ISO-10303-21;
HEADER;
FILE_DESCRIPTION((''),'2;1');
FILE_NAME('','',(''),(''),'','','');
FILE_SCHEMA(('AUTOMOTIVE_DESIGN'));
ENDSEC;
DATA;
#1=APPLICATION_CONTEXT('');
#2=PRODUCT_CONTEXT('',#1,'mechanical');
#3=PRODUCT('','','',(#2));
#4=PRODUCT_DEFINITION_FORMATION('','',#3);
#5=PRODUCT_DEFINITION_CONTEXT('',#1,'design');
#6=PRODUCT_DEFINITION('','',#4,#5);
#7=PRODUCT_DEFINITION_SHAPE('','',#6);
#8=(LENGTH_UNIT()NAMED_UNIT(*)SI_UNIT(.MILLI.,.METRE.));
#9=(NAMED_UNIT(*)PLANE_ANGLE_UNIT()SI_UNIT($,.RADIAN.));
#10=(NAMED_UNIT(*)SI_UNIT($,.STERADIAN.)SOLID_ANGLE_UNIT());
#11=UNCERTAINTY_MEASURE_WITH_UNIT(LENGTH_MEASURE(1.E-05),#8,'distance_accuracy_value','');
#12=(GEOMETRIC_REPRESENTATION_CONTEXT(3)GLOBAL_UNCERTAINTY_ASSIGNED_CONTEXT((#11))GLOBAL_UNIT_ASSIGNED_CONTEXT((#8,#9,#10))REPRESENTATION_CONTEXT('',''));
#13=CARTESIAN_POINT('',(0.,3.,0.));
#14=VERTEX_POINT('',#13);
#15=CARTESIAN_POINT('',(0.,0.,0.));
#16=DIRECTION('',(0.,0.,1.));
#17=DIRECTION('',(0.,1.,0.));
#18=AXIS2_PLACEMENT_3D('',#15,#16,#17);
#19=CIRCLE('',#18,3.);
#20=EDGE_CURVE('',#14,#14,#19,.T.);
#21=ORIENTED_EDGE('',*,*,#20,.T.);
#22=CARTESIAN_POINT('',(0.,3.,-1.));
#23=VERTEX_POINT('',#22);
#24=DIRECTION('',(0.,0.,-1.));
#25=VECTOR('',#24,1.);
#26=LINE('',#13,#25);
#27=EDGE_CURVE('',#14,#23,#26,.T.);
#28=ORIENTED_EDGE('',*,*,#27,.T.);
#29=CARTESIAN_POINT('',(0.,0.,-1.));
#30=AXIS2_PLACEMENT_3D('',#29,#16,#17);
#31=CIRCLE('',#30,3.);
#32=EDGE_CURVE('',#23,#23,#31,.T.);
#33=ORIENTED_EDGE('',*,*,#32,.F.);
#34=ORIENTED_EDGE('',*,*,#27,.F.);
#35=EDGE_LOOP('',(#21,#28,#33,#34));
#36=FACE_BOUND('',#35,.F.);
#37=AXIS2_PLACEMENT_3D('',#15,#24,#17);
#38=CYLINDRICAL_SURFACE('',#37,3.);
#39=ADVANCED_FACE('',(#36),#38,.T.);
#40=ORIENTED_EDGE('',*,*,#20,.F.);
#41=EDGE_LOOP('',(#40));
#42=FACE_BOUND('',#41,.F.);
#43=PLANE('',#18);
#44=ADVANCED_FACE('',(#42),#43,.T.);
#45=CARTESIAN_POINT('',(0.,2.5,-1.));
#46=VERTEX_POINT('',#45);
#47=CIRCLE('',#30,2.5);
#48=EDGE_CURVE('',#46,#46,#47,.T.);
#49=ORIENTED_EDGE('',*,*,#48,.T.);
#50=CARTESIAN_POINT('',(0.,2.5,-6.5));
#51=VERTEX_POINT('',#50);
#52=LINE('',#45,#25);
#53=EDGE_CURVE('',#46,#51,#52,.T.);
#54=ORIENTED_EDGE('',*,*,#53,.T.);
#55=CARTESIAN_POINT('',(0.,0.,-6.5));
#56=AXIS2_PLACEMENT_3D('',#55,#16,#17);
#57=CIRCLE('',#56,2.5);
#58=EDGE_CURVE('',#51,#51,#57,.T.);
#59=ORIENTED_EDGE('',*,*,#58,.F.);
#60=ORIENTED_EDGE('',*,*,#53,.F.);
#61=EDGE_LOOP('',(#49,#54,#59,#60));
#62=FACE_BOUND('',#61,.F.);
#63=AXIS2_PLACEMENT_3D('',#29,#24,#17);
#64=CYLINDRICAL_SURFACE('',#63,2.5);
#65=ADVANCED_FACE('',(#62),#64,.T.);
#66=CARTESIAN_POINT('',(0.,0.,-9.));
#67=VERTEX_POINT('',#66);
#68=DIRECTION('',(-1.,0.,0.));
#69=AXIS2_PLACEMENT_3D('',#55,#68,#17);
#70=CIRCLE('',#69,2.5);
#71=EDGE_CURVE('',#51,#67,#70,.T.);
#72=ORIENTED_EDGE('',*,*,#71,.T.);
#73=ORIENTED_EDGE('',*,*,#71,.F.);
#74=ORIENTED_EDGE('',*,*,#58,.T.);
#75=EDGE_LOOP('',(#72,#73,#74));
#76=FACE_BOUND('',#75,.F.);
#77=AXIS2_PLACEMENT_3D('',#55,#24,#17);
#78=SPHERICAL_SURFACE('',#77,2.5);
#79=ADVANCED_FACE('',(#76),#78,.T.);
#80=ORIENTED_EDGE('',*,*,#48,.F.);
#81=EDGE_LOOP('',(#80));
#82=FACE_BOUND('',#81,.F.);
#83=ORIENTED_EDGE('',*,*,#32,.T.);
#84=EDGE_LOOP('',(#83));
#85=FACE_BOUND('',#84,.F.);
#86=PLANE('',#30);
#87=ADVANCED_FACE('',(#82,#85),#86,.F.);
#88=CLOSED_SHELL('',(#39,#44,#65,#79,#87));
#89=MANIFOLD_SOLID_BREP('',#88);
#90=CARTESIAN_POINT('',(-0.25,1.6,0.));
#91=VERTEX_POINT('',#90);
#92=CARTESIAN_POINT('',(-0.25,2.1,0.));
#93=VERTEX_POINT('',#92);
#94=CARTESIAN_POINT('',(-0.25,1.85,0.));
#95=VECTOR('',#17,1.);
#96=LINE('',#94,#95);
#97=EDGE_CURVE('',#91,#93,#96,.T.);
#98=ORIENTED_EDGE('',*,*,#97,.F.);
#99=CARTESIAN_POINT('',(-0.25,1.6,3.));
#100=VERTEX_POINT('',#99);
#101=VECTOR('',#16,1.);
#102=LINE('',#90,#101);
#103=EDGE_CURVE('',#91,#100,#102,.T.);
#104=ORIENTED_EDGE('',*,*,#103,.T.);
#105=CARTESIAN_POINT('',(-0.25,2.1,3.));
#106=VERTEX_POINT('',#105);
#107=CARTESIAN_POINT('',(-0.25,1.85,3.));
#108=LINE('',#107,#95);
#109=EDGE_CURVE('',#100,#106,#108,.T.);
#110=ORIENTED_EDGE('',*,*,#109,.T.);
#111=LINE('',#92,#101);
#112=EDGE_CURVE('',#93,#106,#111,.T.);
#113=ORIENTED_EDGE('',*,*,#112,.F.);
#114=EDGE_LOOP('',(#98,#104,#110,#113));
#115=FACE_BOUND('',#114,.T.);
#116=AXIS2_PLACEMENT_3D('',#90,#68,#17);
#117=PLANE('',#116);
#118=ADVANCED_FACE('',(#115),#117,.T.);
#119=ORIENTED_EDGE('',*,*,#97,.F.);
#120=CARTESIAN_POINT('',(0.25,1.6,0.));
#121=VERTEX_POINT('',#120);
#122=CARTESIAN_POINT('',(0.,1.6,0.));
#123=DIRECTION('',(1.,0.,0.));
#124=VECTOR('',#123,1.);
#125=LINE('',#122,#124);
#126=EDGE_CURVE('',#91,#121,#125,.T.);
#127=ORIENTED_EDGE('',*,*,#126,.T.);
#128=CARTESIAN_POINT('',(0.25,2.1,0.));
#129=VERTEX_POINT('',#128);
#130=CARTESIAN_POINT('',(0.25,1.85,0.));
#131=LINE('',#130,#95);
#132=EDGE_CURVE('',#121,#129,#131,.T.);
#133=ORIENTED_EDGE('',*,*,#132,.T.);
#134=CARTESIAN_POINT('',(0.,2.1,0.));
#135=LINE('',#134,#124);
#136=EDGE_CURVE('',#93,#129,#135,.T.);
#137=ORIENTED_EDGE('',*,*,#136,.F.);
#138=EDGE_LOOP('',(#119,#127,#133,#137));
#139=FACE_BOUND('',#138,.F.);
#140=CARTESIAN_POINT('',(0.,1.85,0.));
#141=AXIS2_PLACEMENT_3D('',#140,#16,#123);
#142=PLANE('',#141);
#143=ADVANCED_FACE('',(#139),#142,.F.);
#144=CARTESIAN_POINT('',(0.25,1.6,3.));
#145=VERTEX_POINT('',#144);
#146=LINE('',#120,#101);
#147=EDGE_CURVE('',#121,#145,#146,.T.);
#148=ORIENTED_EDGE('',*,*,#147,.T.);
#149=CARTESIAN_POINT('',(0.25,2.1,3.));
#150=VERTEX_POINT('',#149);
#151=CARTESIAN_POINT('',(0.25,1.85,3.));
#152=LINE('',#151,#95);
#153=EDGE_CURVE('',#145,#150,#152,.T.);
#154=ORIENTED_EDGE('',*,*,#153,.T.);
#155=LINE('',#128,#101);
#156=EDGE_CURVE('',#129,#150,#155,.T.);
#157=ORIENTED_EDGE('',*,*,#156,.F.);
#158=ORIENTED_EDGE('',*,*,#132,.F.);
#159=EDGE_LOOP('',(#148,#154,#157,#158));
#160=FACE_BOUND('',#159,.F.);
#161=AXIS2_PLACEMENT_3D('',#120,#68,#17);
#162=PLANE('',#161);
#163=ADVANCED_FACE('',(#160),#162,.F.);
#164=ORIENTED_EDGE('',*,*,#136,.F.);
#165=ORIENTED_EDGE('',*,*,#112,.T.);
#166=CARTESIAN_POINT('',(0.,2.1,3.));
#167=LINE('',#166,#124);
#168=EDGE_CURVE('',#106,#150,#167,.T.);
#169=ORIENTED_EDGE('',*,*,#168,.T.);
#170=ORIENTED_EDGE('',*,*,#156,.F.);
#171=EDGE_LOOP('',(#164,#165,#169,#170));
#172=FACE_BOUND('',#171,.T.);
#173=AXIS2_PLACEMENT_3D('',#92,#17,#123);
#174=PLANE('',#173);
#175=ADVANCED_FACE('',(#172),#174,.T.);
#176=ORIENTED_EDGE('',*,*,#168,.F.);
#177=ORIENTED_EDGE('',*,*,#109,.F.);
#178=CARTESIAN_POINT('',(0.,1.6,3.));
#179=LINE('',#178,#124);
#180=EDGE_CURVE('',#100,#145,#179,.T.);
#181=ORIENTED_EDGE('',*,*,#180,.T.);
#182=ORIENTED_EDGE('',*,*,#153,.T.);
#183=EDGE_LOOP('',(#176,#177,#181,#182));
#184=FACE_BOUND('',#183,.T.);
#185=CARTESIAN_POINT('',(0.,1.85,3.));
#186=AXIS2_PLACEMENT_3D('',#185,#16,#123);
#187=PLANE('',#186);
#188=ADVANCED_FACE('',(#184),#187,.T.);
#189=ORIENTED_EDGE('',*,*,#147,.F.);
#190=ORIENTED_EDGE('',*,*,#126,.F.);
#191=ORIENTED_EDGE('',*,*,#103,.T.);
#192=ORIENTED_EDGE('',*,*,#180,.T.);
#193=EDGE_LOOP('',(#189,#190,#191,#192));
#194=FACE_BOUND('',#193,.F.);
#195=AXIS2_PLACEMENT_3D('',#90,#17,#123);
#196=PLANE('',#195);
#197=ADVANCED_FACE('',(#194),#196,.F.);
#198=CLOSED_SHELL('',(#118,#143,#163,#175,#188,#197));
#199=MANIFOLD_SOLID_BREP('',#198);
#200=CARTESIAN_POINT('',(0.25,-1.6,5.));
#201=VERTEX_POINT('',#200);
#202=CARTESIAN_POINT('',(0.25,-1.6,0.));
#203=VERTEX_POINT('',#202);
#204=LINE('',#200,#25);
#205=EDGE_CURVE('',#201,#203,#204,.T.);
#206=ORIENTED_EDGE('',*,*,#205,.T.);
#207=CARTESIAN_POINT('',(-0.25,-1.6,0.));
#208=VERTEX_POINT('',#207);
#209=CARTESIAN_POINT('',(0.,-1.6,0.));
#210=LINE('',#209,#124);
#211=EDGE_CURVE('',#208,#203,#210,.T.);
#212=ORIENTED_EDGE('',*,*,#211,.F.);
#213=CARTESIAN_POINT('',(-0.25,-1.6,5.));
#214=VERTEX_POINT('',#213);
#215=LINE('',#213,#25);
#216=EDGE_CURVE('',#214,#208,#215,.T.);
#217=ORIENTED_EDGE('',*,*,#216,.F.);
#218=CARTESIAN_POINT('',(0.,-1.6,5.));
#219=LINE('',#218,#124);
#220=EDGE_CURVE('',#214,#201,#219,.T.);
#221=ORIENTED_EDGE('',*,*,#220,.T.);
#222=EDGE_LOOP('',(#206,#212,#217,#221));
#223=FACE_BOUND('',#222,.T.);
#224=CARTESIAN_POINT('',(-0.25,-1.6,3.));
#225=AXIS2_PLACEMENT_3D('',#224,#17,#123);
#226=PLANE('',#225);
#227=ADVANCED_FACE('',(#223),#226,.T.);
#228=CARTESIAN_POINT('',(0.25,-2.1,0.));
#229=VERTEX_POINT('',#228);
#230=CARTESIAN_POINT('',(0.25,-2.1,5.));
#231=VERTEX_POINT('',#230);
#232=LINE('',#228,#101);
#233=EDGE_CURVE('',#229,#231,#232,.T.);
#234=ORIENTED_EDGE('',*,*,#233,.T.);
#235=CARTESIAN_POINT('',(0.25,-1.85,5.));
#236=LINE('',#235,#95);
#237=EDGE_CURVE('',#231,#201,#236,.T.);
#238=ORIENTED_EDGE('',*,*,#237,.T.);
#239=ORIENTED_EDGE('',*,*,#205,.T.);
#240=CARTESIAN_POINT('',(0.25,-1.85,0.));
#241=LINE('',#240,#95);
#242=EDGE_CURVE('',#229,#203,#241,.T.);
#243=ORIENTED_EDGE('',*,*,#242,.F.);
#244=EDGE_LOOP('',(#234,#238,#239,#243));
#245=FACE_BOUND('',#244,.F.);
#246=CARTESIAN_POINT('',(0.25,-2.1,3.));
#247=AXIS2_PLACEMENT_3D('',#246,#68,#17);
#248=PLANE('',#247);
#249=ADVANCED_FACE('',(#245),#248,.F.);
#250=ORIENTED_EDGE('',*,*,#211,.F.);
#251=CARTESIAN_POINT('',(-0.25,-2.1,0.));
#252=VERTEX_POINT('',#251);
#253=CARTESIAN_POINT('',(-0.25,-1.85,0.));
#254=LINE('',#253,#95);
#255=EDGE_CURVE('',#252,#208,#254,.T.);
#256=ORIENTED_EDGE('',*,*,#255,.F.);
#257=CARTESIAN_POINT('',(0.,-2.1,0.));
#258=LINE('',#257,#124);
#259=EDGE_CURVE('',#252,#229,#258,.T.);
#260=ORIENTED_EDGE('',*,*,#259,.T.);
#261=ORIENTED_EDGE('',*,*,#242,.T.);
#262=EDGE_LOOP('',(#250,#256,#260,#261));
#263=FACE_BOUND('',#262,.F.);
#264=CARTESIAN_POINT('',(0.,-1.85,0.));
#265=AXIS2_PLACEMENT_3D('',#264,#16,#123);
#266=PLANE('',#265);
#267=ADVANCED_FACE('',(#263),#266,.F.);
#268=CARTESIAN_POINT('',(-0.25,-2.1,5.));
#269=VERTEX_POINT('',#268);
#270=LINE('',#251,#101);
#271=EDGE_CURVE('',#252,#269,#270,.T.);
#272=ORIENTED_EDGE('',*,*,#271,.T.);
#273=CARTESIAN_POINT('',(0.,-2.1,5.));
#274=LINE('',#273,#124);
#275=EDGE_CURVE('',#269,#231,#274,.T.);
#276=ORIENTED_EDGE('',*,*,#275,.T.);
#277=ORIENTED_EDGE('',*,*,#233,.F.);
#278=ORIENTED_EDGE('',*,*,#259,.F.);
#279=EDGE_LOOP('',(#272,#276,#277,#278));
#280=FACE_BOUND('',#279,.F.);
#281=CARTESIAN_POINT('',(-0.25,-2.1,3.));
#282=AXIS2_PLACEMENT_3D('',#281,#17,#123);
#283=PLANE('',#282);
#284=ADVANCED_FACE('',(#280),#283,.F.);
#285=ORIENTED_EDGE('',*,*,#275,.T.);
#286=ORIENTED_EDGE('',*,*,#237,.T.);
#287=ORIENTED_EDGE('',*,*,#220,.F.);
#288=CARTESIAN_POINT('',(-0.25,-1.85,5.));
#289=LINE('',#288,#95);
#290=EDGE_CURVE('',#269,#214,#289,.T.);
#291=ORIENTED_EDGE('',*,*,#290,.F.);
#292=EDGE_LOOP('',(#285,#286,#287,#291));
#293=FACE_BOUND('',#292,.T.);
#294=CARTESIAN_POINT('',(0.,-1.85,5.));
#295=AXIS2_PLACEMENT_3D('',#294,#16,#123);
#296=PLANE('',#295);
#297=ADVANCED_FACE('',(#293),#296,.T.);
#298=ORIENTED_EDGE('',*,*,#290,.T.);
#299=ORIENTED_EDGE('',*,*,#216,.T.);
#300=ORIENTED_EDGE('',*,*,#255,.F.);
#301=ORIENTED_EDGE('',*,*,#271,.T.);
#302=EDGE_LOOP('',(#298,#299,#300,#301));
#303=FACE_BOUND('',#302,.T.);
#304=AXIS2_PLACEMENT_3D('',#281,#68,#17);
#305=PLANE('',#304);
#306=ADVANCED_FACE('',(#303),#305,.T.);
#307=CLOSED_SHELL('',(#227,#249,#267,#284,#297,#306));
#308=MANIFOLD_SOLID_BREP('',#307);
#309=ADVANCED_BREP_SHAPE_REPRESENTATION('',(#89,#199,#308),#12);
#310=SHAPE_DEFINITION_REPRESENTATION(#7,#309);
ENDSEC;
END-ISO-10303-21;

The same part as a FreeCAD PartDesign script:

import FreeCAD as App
import Part
import Sketcher
from FreeCAD import Vector
Q = App.Units.Quantity


def edges_at(feature, points):
    """Names of the edges that pass closest to the given points."""
    edges = feature.Shape.Edges
    near = lambda p: min(range(len(edges)), key=lambda i: edges[i].distToShape(Part.Vertex(*p))[0])
    return sorted({f"Edge{near(p) + 1}" for p in points})

doc = App.newDocument("Part")
params = doc.addObject("Spreadsheet::Sheet", "Params")
for row, (alias, value) in enumerate([
    ("sketch1_width", "3 mm"),
    ("sketch1_height", "9 mm"),
    ("sketch1_height2", "8 mm"),
    ("sketch1_width2", "2.5 mm"),
    ("revolution_angle", "360 deg"),
    ("fillet_radius", "2.5 mm"),
    ("sketch2_width", "0.5 mm"),
    ("pad1_length", "3 mm"),
    ("sketch3_width", "0.5 mm"),
    ("pad2_length", "3 mm"),
    ("sketch4_width", "0.5 mm"),
    ("pad3_length", "2 mm"),
], start=1):
    params.set(f"A{row}", alias)
    params.set(f"B{row}", "=" + value)
    params.setAlias(f"B{row}", alias)

body = doc.addObject("PartDesign::Body", "Body")

# Sketch on YZ plane
sketch1 = body.newObject("Sketcher::SketchObject", "Sketch")
sketch1.AttachmentSupport = (doc.getObject("YZ_Plane"), [""])
sketch1.MapMode = "FlatFace"
sketch1.addGeometry([
    Part.LineSegment(Vector(3, 0, 0), Vector(0, 0, 0)),  # 0
    Part.LineSegment(Vector(0, 0, 0), Vector(0, -9, 0)),  # 1
    Part.LineSegment(Vector(0, -9, 0), Vector(2.5, -9, 0)),  # 2
    Part.LineSegment(Vector(2.5, -9, 0), Vector(2.5, -1, 0)),  # 3
    Part.LineSegment(Vector(2.5, -1, 0), Vector(3, -1, 0)),  # 4
    Part.LineSegment(Vector(3, -1, 0), Vector(3, 0, 0)),  # 5
], False)
sketch1.addConstraint([
    Sketcher.Constraint("Coincident", 0, 2, 1, 1),
    Sketcher.Constraint("Coincident", 1, 2, 2, 1),
    Sketcher.Constraint("Coincident", 2, 2, 3, 1),
    Sketcher.Constraint("Coincident", 3, 2, 4, 1),
    Sketcher.Constraint("Coincident", 4, 2, 5, 1),
    Sketcher.Constraint("Coincident", 5, 2, 0, 1),
    Sketcher.Constraint("Horizontal", 0),
    Sketcher.Constraint("Vertical", 1),
    Sketcher.Constraint("Horizontal", 2),
    Sketcher.Constraint("Vertical", 3),
    Sketcher.Constraint("Horizontal", 4),
    Sketcher.Constraint("Vertical", 5),
    Sketcher.Constraint("Coincident", 0, 2, -1, 1),
    Sketcher.Constraint("DistanceX", 0, 2, 0, 1, Q("3 mm")),
    Sketcher.Constraint("DistanceY", 1, 2, 1, 1, Q("9 mm")),
    Sketcher.Constraint("DistanceY", 3, 1, 3, 2, Q("8 mm")),
    Sketcher.Constraint("DistanceX", 2, 1, 2, 2, Q("2.5 mm")),
])
sketch1.setExpression("Constraints[13]", "Params.sketch1_width")
sketch1.setExpression("Constraints[14]", "Params.sketch1_height")
sketch1.setExpression("Constraints[15]", "Params.sketch1_height2")
sketch1.setExpression("Constraints[16]", "Params.sketch1_width2")
revolution = body.newObject("PartDesign::Revolution", "Revolution")
revolution.Profile = sketch1
revolution.ReferenceAxis = (sketch1, ["V_Axis"])
revolution.setExpression("Angle", "Params.revolution_angle")
doc.recompute()

fillet = body.newObject("PartDesign::Fillet", "Fillet")
fillet.Base = (revolution, edges_at(revolution, [(0, -2.5, -9)]))
fillet.setExpression("Radius", "Params.fillet_radius")
body2 = doc.addObject("PartDesign::Body", "Body001")

# Sketch on XY plane
sketch2 = body2.newObject("Sketcher::SketchObject", "Sketch001")
sketch2.AttachmentSupport = (doc.getObject("XY_Plane001"), [""])
sketch2.MapMode = "FlatFace"
sketch2.addGeometry([
    Part.LineSegment(Vector(-0.2, -1.6, 0), Vector(-0.2, -2.1, 0)),
    Part.LineSegment(Vector(-0.2, -2.1, 0), Vector(0.2, -2.1, 0)),
    Part.LineSegment(Vector(0.2, -2.1, 0), Vector(0.2, -1.6, 0)),
    Part.LineSegment(Vector(0.2, -1.6, 0), Vector(-0.2, -1.6, 0)),
], False)
sketch2.addConstraint([
    Sketcher.Constraint("Coincident", 0, 2, 1, 1),
    Sketcher.Constraint("Coincident", 1, 2, 2, 1),
    Sketcher.Constraint("Coincident", 2, 2, 3, 1),
    Sketcher.Constraint("Coincident", 3, 2, 0, 1),
    Sketcher.Constraint("Vertical", 0),
    Sketcher.Constraint("Horizontal", 1),
    Sketcher.Constraint("Vertical", 2),
    Sketcher.Constraint("Horizontal", 3),
    Sketcher.Constraint("Equal", 3, 0),
    Sketcher.Constraint("DistanceX", 1, 1, 1, 2, Q("0.5 mm")),
    Sketcher.Constraint("DistanceY", 0, 2, -1, 1, Q("2.1 mm")),
    Sketcher.Constraint("DistanceX", 0, 2, -1, 1, Q("0.25 mm")),
])
sketch2.setExpression("Constraints[9]", "Params.sketch2_width")
pad1 = body2.newObject("PartDesign::Pad", "Pad")
pad1.Profile = sketch2
pad1.setExpression("Length", "Params.pad1_length")
body3 = doc.addObject("PartDesign::Body", "Body002")

# Sketch on XY plane
sketch3 = body3.newObject("Sketcher::SketchObject", "Sketch002")
sketch3.AttachmentSupport = (doc.getObject("XY_Plane002"), [""])
sketch3.MapMode = "FlatFace"
sketch3.addGeometry([
    Part.LineSegment(Vector(-0.2, 2.1, 0), Vector(-0.2, 1.6, 0)),
    Part.LineSegment(Vector(-0.2, 1.6, 0), Vector(0.2, 1.6, 0)),
    Part.LineSegment(Vector(0.2, 1.6, 0), Vector(0.2, 2.1, 0)),
    Part.LineSegment(Vector(0.2, 2.1, 0), Vector(-0.2, 2.1, 0)),
], False)
sketch3.addConstraint([
    Sketcher.Constraint("Coincident", 0, 2, 1, 1),
    Sketcher.Constraint("Coincident", 1, 2, 2, 1),
    Sketcher.Constraint("Coincident", 2, 2, 3, 1),
    Sketcher.Constraint("Coincident", 3, 2, 0, 1),
    Sketcher.Constraint("Vertical", 0),
    Sketcher.Constraint("Horizontal", 1),
    Sketcher.Constraint("Vertical", 2),
    Sketcher.Constraint("Horizontal", 3),
    Sketcher.Constraint("Equal", 3, 0),
    Sketcher.Constraint("DistanceX", 1, 1, 1, 2, Q("0.5 mm")),
    Sketcher.Constraint("DistanceY", -1, 1, 0, 2, Q("1.6 mm")),
    Sketcher.Constraint("DistanceX", 0, 2, -1, 1, Q("0.25 mm")),
])
sketch3.setExpression("Constraints[9]", "Params.sketch3_width")
pad2 = body3.newObject("PartDesign::Pad", "Pad001")
pad2.Profile = sketch3
pad2.setExpression("Length", "Params.pad2_length")
body4 = doc.addObject("PartDesign::Body", "Body003")

# Sketch on XY plane
sketch4 = body4.newObject("Sketcher::SketchObject", "Sketch003")
sketch4.AttachmentSupport = (doc.getObject("XY_Plane003"), [""])
sketch4.MapMode = "FlatFace"
sketch4.AttachmentOffset = App.Placement(Vector(0, 0, 3), App.Rotation())
sketch4.addGeometry([
    Part.LineSegment(Vector(-0.2, -1.6, 0), Vector(-0.2, -2.1, 0)),
    Part.LineSegment(Vector(-0.2, -2.1, 0), Vector(0.2, -2.1, 0)),
    Part.LineSegment(Vector(0.2, -2.1, 0), Vector(0.2, -1.6, 0)),
    Part.LineSegment(Vector(0.2, -1.6, 0), Vector(-0.2, -1.6, 0)),
], False)
sketch4.addConstraint([
    Sketcher.Constraint("Coincident", 0, 2, 1, 1),
    Sketcher.Constraint("Coincident", 1, 2, 2, 1),
    Sketcher.Constraint("Coincident", 2, 2, 3, 1),
    Sketcher.Constraint("Coincident", 3, 2, 0, 1),
    Sketcher.Constraint("Vertical", 0),
    Sketcher.Constraint("Horizontal", 1),
    Sketcher.Constraint("Vertical", 2),
    Sketcher.Constraint("Horizontal", 3),
    Sketcher.Constraint("Equal", 3, 0),
    Sketcher.Constraint("DistanceX", 1, 1, 1, 2, Q("0.5 mm")),
    Sketcher.Constraint("DistanceY", 0, 2, -1, 1, Q("2.1 mm")),
    Sketcher.Constraint("DistanceX", 0, 2, -1, 1, Q("0.25 mm")),
])
sketch4.setExpression("Constraints[9]", "Params.sketch4_width")
pad3 = body4.newObject("PartDesign::Pad", "Pad002")
pad3.Profile = sketch4
pad3.setExpression("Length", "Params.pad3_length")
doc.recompute()

boolean = body2.newObject("PartDesign::Boolean", "Boolean")
boolean.Type = "Fuse"
boolean.addObjects([body4])

doc.recompute()
